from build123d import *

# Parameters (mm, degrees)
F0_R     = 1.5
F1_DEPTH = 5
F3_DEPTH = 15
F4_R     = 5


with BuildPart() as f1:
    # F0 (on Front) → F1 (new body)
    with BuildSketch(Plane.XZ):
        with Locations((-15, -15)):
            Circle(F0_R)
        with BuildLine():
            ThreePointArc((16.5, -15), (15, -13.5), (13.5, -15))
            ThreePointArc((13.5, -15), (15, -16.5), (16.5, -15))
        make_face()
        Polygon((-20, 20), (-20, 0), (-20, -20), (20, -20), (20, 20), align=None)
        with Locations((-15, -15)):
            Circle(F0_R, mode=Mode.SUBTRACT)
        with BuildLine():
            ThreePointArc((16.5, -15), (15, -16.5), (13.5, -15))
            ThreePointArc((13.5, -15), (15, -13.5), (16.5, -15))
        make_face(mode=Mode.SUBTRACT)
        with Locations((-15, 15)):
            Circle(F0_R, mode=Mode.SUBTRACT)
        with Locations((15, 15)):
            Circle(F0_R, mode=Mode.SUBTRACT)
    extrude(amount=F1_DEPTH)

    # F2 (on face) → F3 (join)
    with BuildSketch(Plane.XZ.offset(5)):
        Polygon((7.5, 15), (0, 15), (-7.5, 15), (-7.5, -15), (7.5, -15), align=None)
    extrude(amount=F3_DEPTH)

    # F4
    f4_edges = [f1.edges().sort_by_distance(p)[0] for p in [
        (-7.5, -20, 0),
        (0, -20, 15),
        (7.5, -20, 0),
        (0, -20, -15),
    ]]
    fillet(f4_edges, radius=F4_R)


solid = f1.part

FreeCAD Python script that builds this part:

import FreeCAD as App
import Part
import Sketcher

V = App.Vector
Q = App.Units.Quantity


def edges_at(feature, points):
    """Names of the edges that pass closest to the given points."""
    edges = feature.Shape.Edges
    near = lambda p: min(range(len(edges)), key=lambda i: edges[i].distToShape(Part.Vertex(*p))[0])
    return sorted({f"Edge{near(p) + 1}" for p in points})

doc = App.newDocument("Part")
body = doc.addObject("PartDesign::Body", "Body")

# Sketch on XZ plane
sketch1 = body.newObject("Sketcher::SketchObject", "Sketch")
sketch1.AttachmentSupport = (doc.getObject("XZ_Plane"), [""])
sketch1.MapMode = "FlatFace"
sketch1.addGeometry([
    Part.LineSegment(V(-20, 20, 0), V(-20, -20, 0)),  # 0
    Part.LineSegment(V(-20, -20, 0), V(20, -20, 0)),  # 1
    Part.LineSegment(V(20, -20, 0), V(20, 20, 0)),  # 2
    Part.LineSegment(V(20, 20, 0), V(-20, 20, 0)),  # 3
    Part.Circle(V(-15, -15, 0), V(0, 0, 1), 1.5),  # 4
    Part.Circle(V(15, -15, 0), V(0, 0, 1), 1.5),  # 5
    Part.Circle(V(-15, 15, 0), V(0, 0, 1), 1.5),  # 6
    Part.Circle(V(15, 15, 0), V(0, 0, 1), 1.5),  # 7
], False)
sketch1.addConstraint([
    Sketcher.Constraint("Coincident", 0, 2, 1, 1),
    Sketcher.Constraint("Coincident", 1, 2, 2, 1),
    Sketcher.Constraint("Coincident", 2, 2, 3, 1),
    Sketcher.Constraint("Coincident", 3, 2, 0, 1),
    Sketcher.Constraint("Vertical", 0),
    Sketcher.Constraint("Horizontal", 1),
    Sketcher.Constraint("Vertical", 2),
    Sketcher.Constraint("Horizontal", 3),
    Sketcher.Constraint("Equal", 4, 5),
    Sketcher.Constraint("Equal", 5, 6),
    Sketcher.Constraint("Equal", 6, 7),
    Sketcher.Constraint("Symmetric", 5, 3, 6, 3, -1, 1),
    Sketcher.Constraint("Symmetric", 4, 3, 7, 3, -1, 1),
    Sketcher.Constraint("Symmetric", 0, 2, 2, 2, -1, 1),
    Sketcher.Constraint("Symmetric", 4, 3, 5, 3, -2),
    Sketcher.Constraint("Equal", 3, 0),
    Sketcher.Constraint("Diameter", 4, Q("3 mm")),
    Sketcher.Constraint("DistanceX", 1, 1, 1, 2, Q("40 mm")),
    Sketcher.Constraint("DistanceX", 4, 3, -1, 1, Q("15 mm")),
    Sketcher.Constraint("DistanceY", 4, 3, -1, 1, Q("15 mm")),
])
pad1 = body.newObject("PartDesign::Pad", "Pad")
pad1.Profile = sketch1
pad1.Length = 5

# Sketch on XZ plane
sketch2 = body.newObject("Sketcher::SketchObject", "Sketch001")
sketch2.AttachmentSupport = (doc.getObject("XZ_Plane"), [""])
sketch2.MapMode = "FlatFace"
sketch2.AttachmentOffset = App.Placement(V(0, 0, 5), App.Rotation())
sketch2.addGeometry([
    Part.LineSegment(V(8, 15, 0), V(-8, 15, 0)),
    Part.LineSegment(V(-8, 15, 0), V(-8, -15, 0)),
    Part.LineSegment(V(-8, -15, 0), V(8, -15, 0)),
    Part.LineSegment(V(8, -15, 0), V(8, 15, 0)),
], False)
sketch2.addConstraint([
    Sketcher.Constraint("Coincident", 0, 2, 1, 1),
    Sketcher.Constraint("Coincident", 1, 2, 2, 1),
    Sketcher.Constraint("Coincident", 2, 2, 3, 1),
    Sketcher.Constraint("Coincident", 3, 2, 0, 1),
    Sketcher.Constraint("Horizontal", 0),
    Sketcher.Constraint("Vertical", 1),
    Sketcher.Constraint("Horizontal", 2),
    Sketcher.Constraint("Vertical", 3),
    Sketcher.Constraint("Symmetric", 0, 2, 2, 2, -1, 1),
    Sketcher.Constraint("DistanceX", 0, 2, 0, 1, Q("15 mm")),
    Sketcher.Constraint("DistanceY", 1, 2, 1, 1, Q("30 mm")),
])
pad2 = body.newObject("PartDesign::Pad", "Pad001")
pad2.Profile = sketch2
pad2.Length = 15
doc.recompute()

fillet = body.newObject("PartDesign::Fillet", "Fillet")
fillet.Base = (pad2, edges_at(pad2, [
    (-7.5, -20, 0),
    (0, -20, 15),
    (7.5, -20, 0),
    (0, -20, -15),
]))
fillet.Radius = 5

doc.recompute()
